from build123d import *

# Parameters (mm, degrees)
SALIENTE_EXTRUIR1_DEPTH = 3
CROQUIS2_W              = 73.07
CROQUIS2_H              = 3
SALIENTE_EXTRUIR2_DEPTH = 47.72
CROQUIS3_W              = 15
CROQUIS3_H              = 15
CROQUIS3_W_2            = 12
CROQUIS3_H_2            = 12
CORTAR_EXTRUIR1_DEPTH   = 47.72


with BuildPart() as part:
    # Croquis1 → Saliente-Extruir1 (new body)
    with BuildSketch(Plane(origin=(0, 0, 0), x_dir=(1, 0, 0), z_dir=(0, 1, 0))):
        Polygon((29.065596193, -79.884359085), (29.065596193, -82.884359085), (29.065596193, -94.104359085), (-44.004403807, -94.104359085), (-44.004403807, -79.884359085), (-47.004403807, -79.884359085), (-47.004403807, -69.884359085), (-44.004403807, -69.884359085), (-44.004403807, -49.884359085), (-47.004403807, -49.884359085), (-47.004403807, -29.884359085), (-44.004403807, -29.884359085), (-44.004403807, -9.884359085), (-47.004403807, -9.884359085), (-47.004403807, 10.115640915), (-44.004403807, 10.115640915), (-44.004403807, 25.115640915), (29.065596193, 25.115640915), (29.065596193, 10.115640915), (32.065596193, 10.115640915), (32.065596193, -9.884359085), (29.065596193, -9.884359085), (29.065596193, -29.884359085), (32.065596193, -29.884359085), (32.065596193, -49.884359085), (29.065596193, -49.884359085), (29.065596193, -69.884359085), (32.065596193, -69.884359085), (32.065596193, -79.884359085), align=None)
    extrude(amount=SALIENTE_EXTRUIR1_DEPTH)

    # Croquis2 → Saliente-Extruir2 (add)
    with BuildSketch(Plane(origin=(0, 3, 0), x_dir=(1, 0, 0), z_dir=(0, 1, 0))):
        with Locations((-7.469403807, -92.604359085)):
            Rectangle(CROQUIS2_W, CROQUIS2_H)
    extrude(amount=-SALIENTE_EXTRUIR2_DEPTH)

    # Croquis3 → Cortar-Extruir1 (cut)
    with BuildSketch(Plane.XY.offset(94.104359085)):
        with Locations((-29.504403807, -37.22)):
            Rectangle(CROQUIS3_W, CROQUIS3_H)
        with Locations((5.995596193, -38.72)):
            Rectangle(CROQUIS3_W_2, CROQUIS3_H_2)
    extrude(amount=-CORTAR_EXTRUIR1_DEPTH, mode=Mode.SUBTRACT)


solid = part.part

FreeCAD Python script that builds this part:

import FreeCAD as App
import Part
import Sketcher
Q = App.Units.Quantity


def add_polygon(sketch, points):
    """Adds a closed chain of lines whose ends are joined by coincident constraints."""
    first, n = sketch.GeometryCount, len(points)
    for a, b in zip(points, points[1:] + points[:1]):
        sketch.addGeometry(Part.LineSegment(App.Vector(*a, 0), App.Vector(*b, 0)), False)
    for i in range(n):
        sketch.addConstraint(Sketcher.Constraint("Coincident", first + i, 2, first + (i + 1) % n, 1))

doc = App.newDocument("Part")
body = doc.addObject("PartDesign::Body", "Body")

sketch1 = doc.addObject("Sketcher::SketchObject", "Sketch")
body.addObject(sketch1)
sketch1.AttachmentSupport = (doc.XZ_Plane, [""])
sketch1.MapMode = "FlatFace"
add_polygon(sketch1, [(29.065596, 94.104359), (29.065596, 79.884359), (32.065596, 79.884359), (32.065596, 69.884359), (29.065596, 69.884359), (29.065596, 49.884359), (32.065596, 49.884359), (32.065596, 29.884359), (29.065596, 29.884359), (29.065596, 9.884359), (32.065596, 9.884359), (32.065596, -10.115641), (29.065596, -10.115641), (29.065596, -25.115641), (-44.004404, -25.115641), (-44.004404, -10.115641), (-47.004404, -10.115641), (-47.004404, 9.884359), (-44.004404, 9.884359), (-44.004404, 29.884359), (-47.004404, 29.884359), (-47.004404, 49.884359), (-44.004404, 49.884359), (-44.004404, 69.884359), (-47.004404, 69.884359), (-47.004404, 79.884359), (-44.004404, 79.884359), (-44.004404, 94.104359)])
sketch1.addConstraint(Sketcher.Constraint("Vertical", 0))
sketch1.addConstraint(Sketcher.Constraint("Horizontal", 1))
sketch1.addConstraint(Sketcher.Constraint("Vertical", 2))
sketch1.addConstraint(Sketcher.Constraint("Horizontal", 3))
sketch1.addConstraint(Sketcher.Constraint("Vertical", 4))
sketch1.addConstraint(Sketcher.Constraint("Horizontal", 5))
sketch1.addConstraint(Sketcher.Constraint("Vertical", 6))
sketch1.addConstraint(Sketcher.Constraint("Horizontal", 7))
sketch1.addConstraint(Sketcher.Constraint("Vertical", 8))
sketch1.addConstraint(Sketcher.Constraint("Horizontal", 9))
sketch1.addConstraint(Sketcher.Constraint("Vertical", 10))
sketch1.addConstraint(Sketcher.Constraint("Horizontal", 11))
sketch1.addConstraint(Sketcher.Constraint("Vertical", 12))
sketch1.addConstraint(Sketcher.Constraint("Horizontal", 13))
sketch1.addConstraint(Sketcher.Constraint("Vertical", 14))
sketch1.addConstraint(Sketcher.Constraint("Horizontal", 15))
sketch1.addConstraint(Sketcher.Constraint("Vertical", 16))
sketch1.addConstraint(Sketcher.Constraint("Horizontal", 17))
sketch1.addConstraint(Sketcher.Constraint("Vertical", 18))
sketch1.addConstraint(Sketcher.Constraint("Horizontal", 19))
sketch1.addConstraint(Sketcher.Constraint("Vertical", 20))
sketch1.addConstraint(Sketcher.Constraint("Horizontal", 21))
sketch1.addConstraint(Sketcher.Constraint("Vertical", 22))
sketch1.addConstraint(Sketcher.Constraint("Horizontal", 23))
sketch1.addConstraint(Sketcher.Constraint("Vertical", 24))
sketch1.addConstraint(Sketcher.Constraint("Horizontal", 25))
sketch1.addConstraint(Sketcher.Constraint("Vertical", 26))
sketch1.addConstraint(Sketcher.Constraint("Horizontal", 27))
sketch1.addConstraint(Sketcher.Constraint("Horizontal", 11, 2, 14, 2))
sketch1.addConstraint(Sketcher.Constraint("Horizontal", 9, 2, 16, 2))
sketch1.addConstraint(Sketcher.Constraint("Horizontal", 7, 2, 18, 2))
sketch1.addConstraint(Sketcher.Constraint("Horizontal", 5, 2, 20, 2))
sketch1.addConstraint(Sketcher.Constraint("Horizontal", 3, 2, 22, 2))
sketch1.addConstraint(Sketcher.Constraint("Horizontal", 1, 2, 24, 2))
sketch1.addConstraint(Sketcher.Constraint("Vertical", 0, 2, 3, 2))
sketch1.addConstraint(Sketcher.Constraint("Vertical", 2, 2, 5, 2))
sketch1.addConstraint(Sketcher.Constraint("Vertical", 4, 2, 7, 2))
sketch1.addConstraint(Sketcher.Constraint("Vertical", 6, 2, 9, 2))
sketch1.addConstraint(Sketcher.Constraint("Vertical", 8, 2, 11, 2))
sketch1.addConstraint(Sketcher.Constraint("Vertical", 14, 2, 17, 2))
sketch1.addConstraint(Sketcher.Constraint("Vertical", 16, 2, 19, 2))
sketch1.addConstraint(Sketcher.Constraint("Vertical", 18, 2, 21, 2))
sketch1.addConstraint(Sketcher.Constraint("Vertical", 20, 2, 23, 2))
sketch1.addConstraint(Sketcher.Constraint("Vertical", 22, 2, 25, 2))
sketch1.addConstraint(Sketcher.Constraint("Equal", 11, 15))
sketch1.addConstraint(Sketcher.Constraint("Equal", 4, 6))
sketch1.addConstraint(Sketcher.Constraint("Equal", 6, 8))
sketch1.addConstraint(Sketcher.Constraint("Equal", 8, 10))
sketch1.addConstraint(Sketcher.Constraint("DistanceX", 1, 1, 1, 2, Q("3 mm")))
sketch1.addConstraint(Sketcher.Constraint("DistanceY", 2, 2, 2, 1, Q("10 mm")))
sketch1.addConstraint(Sketcher.Constraint("DistanceY", 4, 2, 4, 1, Q("20 mm")))
sketch1.addConstraint(Sketcher.Constraint("DistanceY", 12, 2, 12, 1, Q("15 mm")))
sketch1.addConstraint(Sketcher.Constraint("DistanceX", 13, 2, 13, 1, Q("73.07 mm")))
sketch1.addConstraint(Sketcher.Constraint("DistanceY", 0, 2, 0, 1, Q("14.22 mm")))
sketch1.addConstraint(Sketcher.Constraint("DistanceY", -1, 1, 0, 2, Q("79.884359 mm")))
sketch1.addConstraint(Sketcher.Constraint("DistanceX", -1, 1, 0, 2, Q("29.065596 mm")))
pad1 = doc.addObject("PartDesign::Pad", "Pad")
body.addObject(pad1)
pad1.Profile = sketch1
pad1.Length = 3
pad1.Reversed = True

sketch2 = doc.addObject("Sketcher::SketchObject", "Sketch001")
body.addObject(sketch2)
sketch2.AttachmentSupport = (doc.XZ_Plane, [""])
sketch2.MapMode = "FlatFace"
sketch2.AttachmentOffset = App.Placement(App.Vector(0, 0, -3), App.Rotation())
add_polygon(sketch2, [(-44.004404, 91.104359), (-44.004404, 94.104359), (29.065596, 94.104359), (29.065596, 91.104359)])
sketch2.addConstraint(Sketcher.Constraint("Vertical", 0))
sketch2.addConstraint(Sketcher.Constraint("Horizontal", 1))
sketch2.addConstraint(Sketcher.Constraint("Vertical", 2))
sketch2.addConstraint(Sketcher.Constraint("Horizontal", 3))
sketch2.addConstraint(Sketcher.Constraint("DistanceY", 0, 1, 0, 2, Q("3 mm")))
sketch2.addConstraint(Sketcher.Constraint("DistanceX", 1, 1, 1, 2, Q("73.07 mm")))
sketch2.addConstraint(Sketcher.Constraint("DistanceY", -1, 1, 0, 2, Q("94.104359 mm")))
sketch2.addConstraint(Sketcher.Constraint("DistanceX", 0, 2, -1, 1, Q("44.004404 mm")))
pad2 = doc.addObject("PartDesign::Pad", "Pad001")
body.addObject(pad2)
pad2.Profile = sketch2
pad2.Length = 47.72

sketch3 = doc.addObject("Sketcher::SketchObject", "Sketch002")
body.addObject(sketch3)
sketch3.AttachmentSupport = (doc.XY_Plane, [""])
sketch3.MapMode = "FlatFace"
sketch3.AttachmentOffset = App.Placement(App.Vector(0, 0, 94.104359), App.Rotation())
add_polygon(sketch3, [(-37.004404, -29.72), (-37.004404, -44.72), (-22.004404, -44.72), (-22.004404, -29.72)])
add_polygon(sketch3, [(-0.004404, -32.72), (-0.004404, -44.72), (11.995596, -44.72), (11.995596, -32.72)])
sketch3.addConstraint(Sketcher.Constraint("Vertical", 0))
sketch3.addConstraint(Sketcher.Constraint("Horizontal", 1))
sketch3.addConstraint(Sketcher.Constraint("Vertical", 2))
sketch3.addConstraint(Sketcher.Constraint("Horizontal", 3))
sketch3.addConstraint(Sketcher.Constraint("Vertical", 4))
sketch3.addConstraint(Sketcher.Constraint("Horizontal", 5))
sketch3.addConstraint(Sketcher.Constraint("Vertical", 6))
sketch3.addConstraint(Sketcher.Constraint("Horizontal", 7))
sketch3.addConstraint(Sketcher.Constraint("Horizontal", 1, 2, 4, 2))
sketch3.addConstraint(Sketcher.Constraint("Equal", 3, 0))
sketch3.addConstraint(Sketcher.Constraint("Equal", 7, 4))
sketch3.addConstraint(Sketcher.Constraint("DistanceX", 1, 1, 1, 2, Q("15 mm")))
sketch3.addConstraint(Sketcher.Constraint("DistanceX", 5, 1, 5, 2, Q("12 mm")))
sketch3.addConstraint(Sketcher.Constraint("DistanceX", 1, 2, 4, 2, Q("22 mm")))
sketch3.addConstraint(Sketcher.Constraint("DistanceY", 0, 2, -1, 1, Q("44.72 mm")))
sketch3.addConstraint(Sketcher.Constraint("DistanceX", 0, 2, -1, 1, Q("37.004404 mm")))
pocket1 = doc.addObject("PartDesign::Pocket", "Pocket")
body.addObject(pocket1)
pocket1.Profile = sketch3
pocket1.Length = 47.72

doc.recompute()
